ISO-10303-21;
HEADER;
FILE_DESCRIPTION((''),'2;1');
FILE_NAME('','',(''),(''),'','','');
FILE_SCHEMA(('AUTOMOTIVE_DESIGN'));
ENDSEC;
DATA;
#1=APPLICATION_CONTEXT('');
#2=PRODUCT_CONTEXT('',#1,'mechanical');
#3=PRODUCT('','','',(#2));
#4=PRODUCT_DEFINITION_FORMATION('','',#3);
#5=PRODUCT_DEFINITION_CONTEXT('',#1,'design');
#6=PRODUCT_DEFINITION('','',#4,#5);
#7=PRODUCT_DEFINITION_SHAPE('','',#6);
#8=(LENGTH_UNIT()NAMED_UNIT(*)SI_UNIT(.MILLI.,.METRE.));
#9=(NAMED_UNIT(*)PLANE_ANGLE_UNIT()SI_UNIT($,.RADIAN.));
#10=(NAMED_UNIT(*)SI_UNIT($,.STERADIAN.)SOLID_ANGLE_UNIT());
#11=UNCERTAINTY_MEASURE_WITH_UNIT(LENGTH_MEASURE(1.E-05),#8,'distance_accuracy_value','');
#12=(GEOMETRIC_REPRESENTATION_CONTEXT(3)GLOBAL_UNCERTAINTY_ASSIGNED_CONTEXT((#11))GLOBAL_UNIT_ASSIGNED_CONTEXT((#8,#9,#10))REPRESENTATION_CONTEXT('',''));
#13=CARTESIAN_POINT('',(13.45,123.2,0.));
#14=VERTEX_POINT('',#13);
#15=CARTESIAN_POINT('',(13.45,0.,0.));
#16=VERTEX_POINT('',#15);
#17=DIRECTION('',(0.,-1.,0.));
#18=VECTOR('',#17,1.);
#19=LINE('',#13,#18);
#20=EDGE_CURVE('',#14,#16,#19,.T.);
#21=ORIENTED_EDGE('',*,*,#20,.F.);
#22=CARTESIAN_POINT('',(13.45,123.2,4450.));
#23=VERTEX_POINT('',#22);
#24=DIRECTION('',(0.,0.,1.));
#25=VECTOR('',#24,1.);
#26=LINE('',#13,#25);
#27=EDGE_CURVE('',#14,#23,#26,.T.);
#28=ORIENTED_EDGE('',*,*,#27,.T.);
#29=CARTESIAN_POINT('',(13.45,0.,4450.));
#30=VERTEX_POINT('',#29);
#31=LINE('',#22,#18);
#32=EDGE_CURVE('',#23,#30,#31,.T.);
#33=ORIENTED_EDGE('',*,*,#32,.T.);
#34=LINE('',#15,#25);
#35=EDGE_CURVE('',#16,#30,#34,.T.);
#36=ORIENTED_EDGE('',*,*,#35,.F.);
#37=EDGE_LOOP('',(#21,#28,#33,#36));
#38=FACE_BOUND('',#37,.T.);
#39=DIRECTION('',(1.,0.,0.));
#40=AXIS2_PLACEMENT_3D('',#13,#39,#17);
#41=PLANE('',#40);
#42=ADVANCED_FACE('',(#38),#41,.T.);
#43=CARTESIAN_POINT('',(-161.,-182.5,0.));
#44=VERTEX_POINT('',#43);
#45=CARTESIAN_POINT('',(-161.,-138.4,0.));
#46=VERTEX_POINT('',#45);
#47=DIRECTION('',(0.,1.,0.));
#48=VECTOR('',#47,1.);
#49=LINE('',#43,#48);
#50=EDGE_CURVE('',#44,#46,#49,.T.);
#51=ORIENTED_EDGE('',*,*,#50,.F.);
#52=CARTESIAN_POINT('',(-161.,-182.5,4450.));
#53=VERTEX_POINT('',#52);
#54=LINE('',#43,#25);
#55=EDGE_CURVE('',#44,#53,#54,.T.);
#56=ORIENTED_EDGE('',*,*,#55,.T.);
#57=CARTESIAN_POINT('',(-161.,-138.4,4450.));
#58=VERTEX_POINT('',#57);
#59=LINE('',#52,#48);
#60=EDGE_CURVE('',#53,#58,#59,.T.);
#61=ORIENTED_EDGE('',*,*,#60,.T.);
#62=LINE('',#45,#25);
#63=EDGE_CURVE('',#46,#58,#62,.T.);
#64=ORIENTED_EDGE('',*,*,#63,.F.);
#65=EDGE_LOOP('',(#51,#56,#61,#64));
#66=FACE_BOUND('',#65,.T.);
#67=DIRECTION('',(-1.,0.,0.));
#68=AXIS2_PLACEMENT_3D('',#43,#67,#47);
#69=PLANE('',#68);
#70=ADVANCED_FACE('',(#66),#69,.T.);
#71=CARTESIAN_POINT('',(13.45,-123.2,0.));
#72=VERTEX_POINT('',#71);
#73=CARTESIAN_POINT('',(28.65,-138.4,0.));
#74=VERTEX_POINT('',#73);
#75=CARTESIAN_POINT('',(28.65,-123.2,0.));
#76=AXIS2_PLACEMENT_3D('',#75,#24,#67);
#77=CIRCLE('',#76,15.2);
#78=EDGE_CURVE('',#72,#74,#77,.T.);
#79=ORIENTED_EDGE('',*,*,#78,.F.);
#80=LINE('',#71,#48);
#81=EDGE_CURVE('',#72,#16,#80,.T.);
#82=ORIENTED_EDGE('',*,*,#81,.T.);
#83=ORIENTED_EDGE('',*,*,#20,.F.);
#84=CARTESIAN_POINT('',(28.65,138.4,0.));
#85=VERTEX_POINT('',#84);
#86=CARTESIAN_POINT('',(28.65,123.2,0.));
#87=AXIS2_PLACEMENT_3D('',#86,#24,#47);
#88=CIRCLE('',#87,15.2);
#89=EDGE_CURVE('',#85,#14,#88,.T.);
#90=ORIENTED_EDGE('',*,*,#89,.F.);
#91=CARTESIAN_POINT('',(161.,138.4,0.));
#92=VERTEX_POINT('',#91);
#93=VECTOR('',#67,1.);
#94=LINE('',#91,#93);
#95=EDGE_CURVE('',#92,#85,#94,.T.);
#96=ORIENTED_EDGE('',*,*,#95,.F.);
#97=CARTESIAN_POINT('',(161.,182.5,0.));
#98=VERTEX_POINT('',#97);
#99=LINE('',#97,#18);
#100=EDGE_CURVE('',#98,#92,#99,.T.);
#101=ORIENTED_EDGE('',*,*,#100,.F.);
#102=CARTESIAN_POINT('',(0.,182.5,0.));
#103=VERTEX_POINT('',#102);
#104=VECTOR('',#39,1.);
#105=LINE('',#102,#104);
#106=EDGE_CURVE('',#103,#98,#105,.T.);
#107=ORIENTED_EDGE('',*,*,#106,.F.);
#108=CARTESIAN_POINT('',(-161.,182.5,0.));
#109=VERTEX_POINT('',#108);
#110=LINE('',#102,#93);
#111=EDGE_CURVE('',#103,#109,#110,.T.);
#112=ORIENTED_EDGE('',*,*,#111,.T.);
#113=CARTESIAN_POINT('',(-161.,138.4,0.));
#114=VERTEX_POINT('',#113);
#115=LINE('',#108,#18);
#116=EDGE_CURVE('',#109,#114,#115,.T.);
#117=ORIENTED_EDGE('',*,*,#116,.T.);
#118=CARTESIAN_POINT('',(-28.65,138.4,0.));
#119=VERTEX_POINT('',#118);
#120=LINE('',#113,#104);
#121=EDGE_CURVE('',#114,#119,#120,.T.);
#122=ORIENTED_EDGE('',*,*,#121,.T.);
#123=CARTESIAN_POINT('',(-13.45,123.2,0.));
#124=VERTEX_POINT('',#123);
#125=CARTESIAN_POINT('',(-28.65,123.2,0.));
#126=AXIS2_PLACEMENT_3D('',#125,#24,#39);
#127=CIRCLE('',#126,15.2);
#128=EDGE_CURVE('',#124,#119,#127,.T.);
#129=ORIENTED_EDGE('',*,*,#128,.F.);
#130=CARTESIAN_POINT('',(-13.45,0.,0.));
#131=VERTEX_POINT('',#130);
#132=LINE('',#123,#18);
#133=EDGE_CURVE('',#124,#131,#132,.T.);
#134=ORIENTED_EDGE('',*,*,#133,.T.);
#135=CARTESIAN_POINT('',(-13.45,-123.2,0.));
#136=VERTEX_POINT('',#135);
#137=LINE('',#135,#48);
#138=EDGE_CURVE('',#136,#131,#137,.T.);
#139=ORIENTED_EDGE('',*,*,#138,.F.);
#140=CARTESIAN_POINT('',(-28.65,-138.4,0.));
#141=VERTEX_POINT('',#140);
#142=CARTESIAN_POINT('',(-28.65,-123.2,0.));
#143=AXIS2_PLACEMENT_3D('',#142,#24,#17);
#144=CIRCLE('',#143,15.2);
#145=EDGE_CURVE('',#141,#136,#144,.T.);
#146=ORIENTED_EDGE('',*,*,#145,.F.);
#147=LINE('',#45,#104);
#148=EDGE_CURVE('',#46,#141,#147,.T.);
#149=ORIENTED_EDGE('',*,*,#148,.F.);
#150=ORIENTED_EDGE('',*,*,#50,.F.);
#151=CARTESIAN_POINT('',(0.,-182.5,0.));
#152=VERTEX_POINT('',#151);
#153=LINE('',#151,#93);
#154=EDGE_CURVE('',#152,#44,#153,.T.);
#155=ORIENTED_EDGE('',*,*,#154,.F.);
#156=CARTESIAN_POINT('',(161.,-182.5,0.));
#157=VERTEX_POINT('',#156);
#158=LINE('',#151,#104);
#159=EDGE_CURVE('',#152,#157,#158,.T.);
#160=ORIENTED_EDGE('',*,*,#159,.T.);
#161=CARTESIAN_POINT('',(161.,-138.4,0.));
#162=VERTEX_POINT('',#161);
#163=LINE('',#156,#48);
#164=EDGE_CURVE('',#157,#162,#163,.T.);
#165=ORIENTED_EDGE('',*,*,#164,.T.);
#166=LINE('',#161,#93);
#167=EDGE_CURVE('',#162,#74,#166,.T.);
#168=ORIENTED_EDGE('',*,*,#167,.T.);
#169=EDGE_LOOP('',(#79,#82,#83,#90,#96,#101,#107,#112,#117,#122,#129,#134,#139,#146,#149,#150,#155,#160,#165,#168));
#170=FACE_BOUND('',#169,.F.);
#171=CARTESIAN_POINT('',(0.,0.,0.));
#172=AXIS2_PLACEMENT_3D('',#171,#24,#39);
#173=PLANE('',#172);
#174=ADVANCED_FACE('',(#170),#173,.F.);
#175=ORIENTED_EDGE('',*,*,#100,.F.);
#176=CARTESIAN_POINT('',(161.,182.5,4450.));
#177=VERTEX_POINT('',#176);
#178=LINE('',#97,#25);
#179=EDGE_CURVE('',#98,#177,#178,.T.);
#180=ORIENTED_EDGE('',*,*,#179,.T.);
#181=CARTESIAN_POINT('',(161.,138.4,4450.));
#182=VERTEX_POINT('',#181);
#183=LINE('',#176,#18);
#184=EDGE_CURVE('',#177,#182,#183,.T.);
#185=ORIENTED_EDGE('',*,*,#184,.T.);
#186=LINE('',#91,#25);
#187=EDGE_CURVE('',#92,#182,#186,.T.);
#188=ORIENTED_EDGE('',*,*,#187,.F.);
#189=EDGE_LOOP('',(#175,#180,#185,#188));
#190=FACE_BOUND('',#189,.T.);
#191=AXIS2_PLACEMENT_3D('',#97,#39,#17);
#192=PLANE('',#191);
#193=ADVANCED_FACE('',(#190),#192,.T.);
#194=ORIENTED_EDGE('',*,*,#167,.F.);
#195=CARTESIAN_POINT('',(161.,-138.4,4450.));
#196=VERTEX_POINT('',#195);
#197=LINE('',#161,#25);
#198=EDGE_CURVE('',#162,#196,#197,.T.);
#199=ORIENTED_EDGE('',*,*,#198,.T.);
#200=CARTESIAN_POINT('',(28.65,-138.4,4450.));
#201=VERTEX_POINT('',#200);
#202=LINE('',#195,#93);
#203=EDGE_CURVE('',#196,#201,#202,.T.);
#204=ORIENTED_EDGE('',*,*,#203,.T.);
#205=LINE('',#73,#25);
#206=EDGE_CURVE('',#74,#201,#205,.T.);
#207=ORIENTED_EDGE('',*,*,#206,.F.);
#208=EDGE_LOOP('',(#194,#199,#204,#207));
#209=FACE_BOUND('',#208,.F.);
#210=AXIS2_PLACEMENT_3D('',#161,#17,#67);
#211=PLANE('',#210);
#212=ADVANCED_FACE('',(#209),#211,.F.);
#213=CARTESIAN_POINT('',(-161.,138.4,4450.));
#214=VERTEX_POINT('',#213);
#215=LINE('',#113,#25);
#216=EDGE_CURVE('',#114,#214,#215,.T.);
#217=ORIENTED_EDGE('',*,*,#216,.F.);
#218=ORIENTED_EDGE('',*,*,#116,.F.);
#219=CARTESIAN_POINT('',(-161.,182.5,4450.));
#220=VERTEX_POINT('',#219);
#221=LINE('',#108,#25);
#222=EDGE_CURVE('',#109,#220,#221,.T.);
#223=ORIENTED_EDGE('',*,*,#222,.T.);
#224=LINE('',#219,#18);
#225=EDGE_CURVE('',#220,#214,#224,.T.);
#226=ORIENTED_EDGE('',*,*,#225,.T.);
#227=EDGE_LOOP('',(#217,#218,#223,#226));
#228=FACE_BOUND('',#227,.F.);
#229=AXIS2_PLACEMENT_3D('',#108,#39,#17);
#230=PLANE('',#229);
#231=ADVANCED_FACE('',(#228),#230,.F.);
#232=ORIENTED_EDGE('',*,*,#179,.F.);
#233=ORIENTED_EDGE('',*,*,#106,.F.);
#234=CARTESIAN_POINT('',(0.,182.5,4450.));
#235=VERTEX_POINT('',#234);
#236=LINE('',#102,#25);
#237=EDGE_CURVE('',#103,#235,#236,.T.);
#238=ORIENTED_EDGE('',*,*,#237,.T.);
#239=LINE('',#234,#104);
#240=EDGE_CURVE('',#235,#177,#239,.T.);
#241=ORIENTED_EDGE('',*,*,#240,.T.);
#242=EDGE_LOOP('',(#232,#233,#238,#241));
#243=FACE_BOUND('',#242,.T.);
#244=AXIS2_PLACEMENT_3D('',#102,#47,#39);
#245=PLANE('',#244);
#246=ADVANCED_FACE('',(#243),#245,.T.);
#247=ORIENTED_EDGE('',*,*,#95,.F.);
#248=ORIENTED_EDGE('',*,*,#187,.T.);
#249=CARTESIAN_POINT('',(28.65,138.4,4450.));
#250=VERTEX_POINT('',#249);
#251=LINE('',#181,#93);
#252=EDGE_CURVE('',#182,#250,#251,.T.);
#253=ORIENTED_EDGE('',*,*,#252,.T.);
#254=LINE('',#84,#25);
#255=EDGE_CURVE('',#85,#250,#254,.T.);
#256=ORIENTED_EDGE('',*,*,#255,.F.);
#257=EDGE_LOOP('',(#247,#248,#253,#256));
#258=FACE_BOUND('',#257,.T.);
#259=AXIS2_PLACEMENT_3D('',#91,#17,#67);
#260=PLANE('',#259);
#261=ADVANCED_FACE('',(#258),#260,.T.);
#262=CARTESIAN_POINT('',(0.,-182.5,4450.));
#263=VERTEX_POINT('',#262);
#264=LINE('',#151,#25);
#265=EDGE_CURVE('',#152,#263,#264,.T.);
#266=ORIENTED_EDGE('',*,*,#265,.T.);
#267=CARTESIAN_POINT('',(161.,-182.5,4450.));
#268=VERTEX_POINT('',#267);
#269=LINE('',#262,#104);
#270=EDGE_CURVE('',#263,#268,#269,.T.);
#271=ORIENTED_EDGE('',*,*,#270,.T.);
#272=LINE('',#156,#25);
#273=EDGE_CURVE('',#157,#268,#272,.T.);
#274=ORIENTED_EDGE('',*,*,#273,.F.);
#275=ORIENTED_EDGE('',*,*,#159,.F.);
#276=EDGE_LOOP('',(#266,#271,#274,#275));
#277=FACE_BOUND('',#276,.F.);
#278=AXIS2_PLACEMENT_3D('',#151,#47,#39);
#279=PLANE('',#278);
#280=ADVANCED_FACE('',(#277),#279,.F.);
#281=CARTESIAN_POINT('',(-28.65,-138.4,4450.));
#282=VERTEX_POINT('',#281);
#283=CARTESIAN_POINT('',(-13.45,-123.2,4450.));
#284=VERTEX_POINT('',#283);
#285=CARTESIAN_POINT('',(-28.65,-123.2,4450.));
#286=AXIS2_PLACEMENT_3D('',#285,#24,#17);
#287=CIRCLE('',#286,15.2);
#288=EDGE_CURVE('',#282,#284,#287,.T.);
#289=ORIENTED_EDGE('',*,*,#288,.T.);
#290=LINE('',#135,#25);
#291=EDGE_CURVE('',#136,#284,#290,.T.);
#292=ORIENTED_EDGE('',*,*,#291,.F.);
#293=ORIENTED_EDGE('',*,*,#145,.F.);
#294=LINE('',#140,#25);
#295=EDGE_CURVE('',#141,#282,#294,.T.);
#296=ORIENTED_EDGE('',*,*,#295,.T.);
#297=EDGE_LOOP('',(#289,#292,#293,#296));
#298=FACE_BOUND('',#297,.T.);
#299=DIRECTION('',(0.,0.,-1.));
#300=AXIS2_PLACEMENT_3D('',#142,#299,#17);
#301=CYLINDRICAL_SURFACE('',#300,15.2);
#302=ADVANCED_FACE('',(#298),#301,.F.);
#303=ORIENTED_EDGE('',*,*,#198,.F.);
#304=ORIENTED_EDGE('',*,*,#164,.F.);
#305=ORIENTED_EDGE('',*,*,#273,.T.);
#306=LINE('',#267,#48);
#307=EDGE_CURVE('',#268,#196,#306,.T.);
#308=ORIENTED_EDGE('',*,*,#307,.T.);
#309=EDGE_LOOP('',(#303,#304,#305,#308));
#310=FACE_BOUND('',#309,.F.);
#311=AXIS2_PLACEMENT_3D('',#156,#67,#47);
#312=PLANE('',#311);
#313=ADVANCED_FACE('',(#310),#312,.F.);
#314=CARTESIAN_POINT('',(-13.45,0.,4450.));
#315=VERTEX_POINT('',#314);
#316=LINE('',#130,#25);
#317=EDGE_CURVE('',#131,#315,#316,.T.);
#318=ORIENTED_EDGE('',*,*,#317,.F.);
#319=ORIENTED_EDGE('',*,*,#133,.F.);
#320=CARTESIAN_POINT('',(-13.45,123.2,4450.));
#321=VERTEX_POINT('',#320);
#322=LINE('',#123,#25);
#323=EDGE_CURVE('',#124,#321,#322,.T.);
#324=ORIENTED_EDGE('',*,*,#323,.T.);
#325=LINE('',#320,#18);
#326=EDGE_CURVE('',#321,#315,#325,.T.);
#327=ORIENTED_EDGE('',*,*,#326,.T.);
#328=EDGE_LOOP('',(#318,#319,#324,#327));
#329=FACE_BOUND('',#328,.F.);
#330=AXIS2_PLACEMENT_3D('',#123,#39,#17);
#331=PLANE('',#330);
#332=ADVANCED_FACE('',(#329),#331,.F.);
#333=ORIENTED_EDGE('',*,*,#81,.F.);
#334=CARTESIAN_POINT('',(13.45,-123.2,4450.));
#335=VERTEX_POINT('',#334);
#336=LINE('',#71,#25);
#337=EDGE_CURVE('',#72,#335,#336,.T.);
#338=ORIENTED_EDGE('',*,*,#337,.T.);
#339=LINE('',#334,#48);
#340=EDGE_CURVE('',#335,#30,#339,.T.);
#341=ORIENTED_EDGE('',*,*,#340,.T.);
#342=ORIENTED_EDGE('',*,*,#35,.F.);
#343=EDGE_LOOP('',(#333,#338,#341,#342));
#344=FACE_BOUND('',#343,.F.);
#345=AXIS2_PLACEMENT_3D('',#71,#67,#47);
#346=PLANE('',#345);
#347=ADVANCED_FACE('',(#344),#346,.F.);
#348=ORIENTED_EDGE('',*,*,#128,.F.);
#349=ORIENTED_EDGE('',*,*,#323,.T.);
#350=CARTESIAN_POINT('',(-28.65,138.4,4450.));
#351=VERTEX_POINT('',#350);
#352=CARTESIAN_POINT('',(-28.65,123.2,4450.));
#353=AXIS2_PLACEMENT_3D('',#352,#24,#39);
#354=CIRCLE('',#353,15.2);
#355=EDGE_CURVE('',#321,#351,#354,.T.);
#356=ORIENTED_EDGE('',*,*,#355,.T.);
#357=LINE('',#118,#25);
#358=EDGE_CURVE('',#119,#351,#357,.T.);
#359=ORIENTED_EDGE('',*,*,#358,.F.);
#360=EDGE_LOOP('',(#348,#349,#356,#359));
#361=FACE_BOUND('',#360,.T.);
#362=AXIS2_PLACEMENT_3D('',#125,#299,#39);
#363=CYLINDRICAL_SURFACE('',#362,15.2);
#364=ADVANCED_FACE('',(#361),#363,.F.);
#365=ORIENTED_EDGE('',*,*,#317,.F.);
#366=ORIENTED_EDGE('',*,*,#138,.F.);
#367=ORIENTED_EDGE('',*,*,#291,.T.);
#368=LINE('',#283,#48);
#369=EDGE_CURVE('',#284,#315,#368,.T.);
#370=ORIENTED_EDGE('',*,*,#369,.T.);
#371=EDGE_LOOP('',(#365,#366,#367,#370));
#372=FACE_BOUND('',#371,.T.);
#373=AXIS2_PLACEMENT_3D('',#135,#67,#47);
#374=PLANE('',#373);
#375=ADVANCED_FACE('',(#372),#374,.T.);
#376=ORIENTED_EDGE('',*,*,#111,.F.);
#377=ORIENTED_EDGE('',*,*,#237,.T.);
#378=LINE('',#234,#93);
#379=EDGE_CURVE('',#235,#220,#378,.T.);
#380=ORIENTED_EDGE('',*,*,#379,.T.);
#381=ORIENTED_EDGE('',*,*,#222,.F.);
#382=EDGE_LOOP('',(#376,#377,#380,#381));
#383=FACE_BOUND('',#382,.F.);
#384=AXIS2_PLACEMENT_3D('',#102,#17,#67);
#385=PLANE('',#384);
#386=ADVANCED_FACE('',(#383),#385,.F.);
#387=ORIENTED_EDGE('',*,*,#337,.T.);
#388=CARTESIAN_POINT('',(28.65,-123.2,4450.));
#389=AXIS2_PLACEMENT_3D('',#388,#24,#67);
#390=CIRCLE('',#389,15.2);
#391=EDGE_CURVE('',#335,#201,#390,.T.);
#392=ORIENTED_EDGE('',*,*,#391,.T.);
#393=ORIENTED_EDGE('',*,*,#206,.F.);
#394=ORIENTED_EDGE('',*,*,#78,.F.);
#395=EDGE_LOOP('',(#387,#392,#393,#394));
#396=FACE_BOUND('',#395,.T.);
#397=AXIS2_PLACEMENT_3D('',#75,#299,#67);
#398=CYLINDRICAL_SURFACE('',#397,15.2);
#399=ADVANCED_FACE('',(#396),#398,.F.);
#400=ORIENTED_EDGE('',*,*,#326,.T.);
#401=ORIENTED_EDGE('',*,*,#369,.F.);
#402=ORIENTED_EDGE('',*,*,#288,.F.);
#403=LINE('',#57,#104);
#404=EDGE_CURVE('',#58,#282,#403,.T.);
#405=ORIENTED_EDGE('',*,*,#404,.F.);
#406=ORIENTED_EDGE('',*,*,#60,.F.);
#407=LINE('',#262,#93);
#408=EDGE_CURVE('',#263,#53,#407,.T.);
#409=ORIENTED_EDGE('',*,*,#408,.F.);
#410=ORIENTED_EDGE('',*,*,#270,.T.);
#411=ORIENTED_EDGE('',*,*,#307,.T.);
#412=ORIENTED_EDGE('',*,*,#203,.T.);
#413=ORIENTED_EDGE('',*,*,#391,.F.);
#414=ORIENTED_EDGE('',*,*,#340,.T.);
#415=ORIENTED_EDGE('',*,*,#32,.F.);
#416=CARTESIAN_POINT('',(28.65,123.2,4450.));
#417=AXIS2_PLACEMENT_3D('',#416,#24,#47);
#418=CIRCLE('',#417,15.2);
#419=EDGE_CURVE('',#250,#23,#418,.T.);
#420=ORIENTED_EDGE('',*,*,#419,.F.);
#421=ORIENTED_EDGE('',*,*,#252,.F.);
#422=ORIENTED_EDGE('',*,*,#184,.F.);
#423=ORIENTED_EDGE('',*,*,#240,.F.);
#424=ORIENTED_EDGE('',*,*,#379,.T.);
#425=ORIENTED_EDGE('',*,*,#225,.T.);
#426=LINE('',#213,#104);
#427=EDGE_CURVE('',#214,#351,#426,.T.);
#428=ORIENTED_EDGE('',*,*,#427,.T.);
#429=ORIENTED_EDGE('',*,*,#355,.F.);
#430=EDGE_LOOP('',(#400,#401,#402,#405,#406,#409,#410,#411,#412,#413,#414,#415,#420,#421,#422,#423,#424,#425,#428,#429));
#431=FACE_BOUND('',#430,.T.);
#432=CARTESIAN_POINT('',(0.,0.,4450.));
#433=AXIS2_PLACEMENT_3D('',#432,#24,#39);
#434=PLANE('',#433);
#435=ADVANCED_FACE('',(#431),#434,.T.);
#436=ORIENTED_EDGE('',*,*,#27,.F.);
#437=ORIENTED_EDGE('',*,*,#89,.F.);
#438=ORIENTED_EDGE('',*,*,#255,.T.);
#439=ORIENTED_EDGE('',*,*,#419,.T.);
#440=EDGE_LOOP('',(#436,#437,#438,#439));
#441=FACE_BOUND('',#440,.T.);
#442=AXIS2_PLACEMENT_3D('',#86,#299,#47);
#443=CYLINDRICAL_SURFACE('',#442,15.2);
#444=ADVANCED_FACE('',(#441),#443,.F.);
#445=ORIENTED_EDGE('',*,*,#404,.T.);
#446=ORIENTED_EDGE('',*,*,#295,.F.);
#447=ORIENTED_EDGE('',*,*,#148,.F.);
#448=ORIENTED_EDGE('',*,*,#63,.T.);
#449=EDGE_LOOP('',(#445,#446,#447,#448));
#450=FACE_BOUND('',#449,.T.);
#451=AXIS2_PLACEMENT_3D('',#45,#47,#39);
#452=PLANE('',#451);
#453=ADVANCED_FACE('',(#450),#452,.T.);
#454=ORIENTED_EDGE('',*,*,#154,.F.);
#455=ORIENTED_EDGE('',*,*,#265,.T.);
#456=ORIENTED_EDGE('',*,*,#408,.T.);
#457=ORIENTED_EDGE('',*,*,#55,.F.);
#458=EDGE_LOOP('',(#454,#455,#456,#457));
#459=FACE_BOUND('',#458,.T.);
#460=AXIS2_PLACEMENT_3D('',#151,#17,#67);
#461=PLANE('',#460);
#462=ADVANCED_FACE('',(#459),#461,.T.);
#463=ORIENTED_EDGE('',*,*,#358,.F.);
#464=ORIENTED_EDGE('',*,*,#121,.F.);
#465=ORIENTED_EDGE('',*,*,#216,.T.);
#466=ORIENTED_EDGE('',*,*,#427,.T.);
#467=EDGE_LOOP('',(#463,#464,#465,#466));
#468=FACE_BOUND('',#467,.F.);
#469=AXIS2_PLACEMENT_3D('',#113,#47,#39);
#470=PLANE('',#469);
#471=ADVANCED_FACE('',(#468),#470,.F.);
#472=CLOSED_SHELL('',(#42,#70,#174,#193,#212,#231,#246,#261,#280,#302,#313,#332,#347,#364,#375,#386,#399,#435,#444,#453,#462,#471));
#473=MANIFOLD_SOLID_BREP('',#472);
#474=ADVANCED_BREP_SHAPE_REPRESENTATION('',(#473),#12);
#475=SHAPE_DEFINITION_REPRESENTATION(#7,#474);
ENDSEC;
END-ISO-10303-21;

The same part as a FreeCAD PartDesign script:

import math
import FreeCAD as App
import Part
import Sketcher
from FreeCAD import Vector
Q = App.Units.Quantity

doc = App.newDocument("Part")
body = doc.addObject("PartDesign::Body", "Body")

sketch1 = body.newObject("Sketcher::SketchObject", "Sketch")
sketch1.AttachmentSupport = (doc.getObject("XY_Plane"), [""])
sketch1.MapMode = "FlatFace"
sketch1.addGeometry([
    Part.LineSegment(Vector(-161, -138.4, 0), Vector(-161, -182.5, 0)),
    Part.LineSegment(Vector(-161, -182.5, 0), Vector(161, -182.5, 0)),
    Part.LineSegment(Vector(161, -182.5, 0), Vector(161, -138.4, 0)),
    Part.LineSegment(Vector(161, -138.4, 0), Vector(28.65, -138.4, 0)),
    Part.ArcOfCircle(Part.Circle(Vector(28.65, -123.2, 0), Vector(0, 0, 1), 15.2), math.radians(180), math.radians(270)),
    Part.LineSegment(Vector(13.45, -123.2, 0), Vector(13.45, 123.2, 0)),
    Part.ArcOfCircle(Part.Circle(Vector(28.65, 123.2, 0), Vector(0, 0, 1), 15.2), math.radians(90), math.radians(180)),
    Part.LineSegment(Vector(28.65, 138.4, 0), Vector(161, 138.4, 0)),
    Part.LineSegment(Vector(161, 138.4, 0), Vector(161, 182.5, 0)),
    Part.LineSegment(Vector(161, 182.5, 0), Vector(-161, 182.5, 0)),
    Part.LineSegment(Vector(-161, 182.5, 0), Vector(-161, 138.4, 0)),
    Part.LineSegment(Vector(-161, 138.4, 0), Vector(-28.65, 138.4, 0)),
    Part.ArcOfCircle(Part.Circle(Vector(-28.65, 123.2, 0), Vector(0, 0, 1), 15.2), math.radians(0), math.radians(90)),
    Part.LineSegment(Vector(-13.45, 123.2, 0), Vector(-13.45, -123.2, 0)),
    Part.ArcOfCircle(Part.Circle(Vector(-28.65, -123.2, 0), Vector(0, 0, 1), 15.2), math.radians(-90), math.radians(0)),
    Part.LineSegment(Vector(-28.65, -138.4, 0), Vector(-161, -138.4, 0)),
], False)
sketch1.addConstraint([
    Sketcher.Constraint("Coincident", 0, 2, 1, 1),
    Sketcher.Constraint("Coincident", 1, 2, 2, 1),
    Sketcher.Constraint("Coincident", 2, 2, 3, 1),
    Sketcher.Constraint("Tangent", 3, 2, 4, 2),
    Sketcher.Constraint("Tangent", 4, 1, 5, 1),
    Sketcher.Constraint("Tangent", 5, 2, 6, 2),
    Sketcher.Constraint("Tangent", 6, 1, 7, 1),
    Sketcher.Constraint("Coincident", 7, 2, 8, 1),
    Sketcher.Constraint("Coincident", 8, 2, 9, 1),
    Sketcher.Constraint("Coincident", 9, 2, 10, 1),
    Sketcher.Constraint("Coincident", 10, 2, 11, 1),
    Sketcher.Constraint("Tangent", 11, 2, 12, 2),
    Sketcher.Constraint("Tangent", 12, 1, 13, 1),
    Sketcher.Constraint("Tangent", 13, 2, 14, 2),
    Sketcher.Constraint("Tangent", 14, 1, 15, 1),
    Sketcher.Constraint("Coincident", 15, 2, 0, 1),
    Sketcher.Constraint("Vertical", 0),
    Sketcher.Constraint("Horizontal", 1),
    Sketcher.Constraint("Vertical", 2),
    Sketcher.Constraint("Horizontal", 3),
    Sketcher.Constraint("Vertical", 5),
    Sketcher.Constraint("Horizontal", 7),
    Sketcher.Constraint("Vertical", 8),
    Sketcher.Constraint("Horizontal", 9),
    Sketcher.Constraint("Vertical", 10),
    Sketcher.Constraint("Horizontal", 11),
    Sketcher.Constraint("Vertical", 13),
    Sketcher.Constraint("Horizontal", 15),
    Sketcher.Constraint("Equal", 4, 6),
    Sketcher.Constraint("Equal", 6, 12),
    Sketcher.Constraint("Equal", 12, 14),
    Sketcher.Constraint("Symmetric", 4, 3, 12, 3, -1, 1),
    Sketcher.Constraint("Symmetric", 0, 2, 8, 2, -1, 1),
    Sketcher.Constraint("Symmetric", 7, 2, 10, 2, -2),
    Sketcher.Constraint("Symmetric", 2, 2, 15, 2, -2),
    Sketcher.Constraint("Radius", 4, Q("15.2 mm")),
    Sketcher.Constraint("DistanceY", 0, 2, 0, 1, Q("44.1 mm")),
    Sketcher.Constraint("DistanceX", 0, 2, -1, 1, Q("161 mm")),
    Sketcher.Constraint("DistanceY", 0, 2, -1, 1, Q("182.5 mm")),
    Sketcher.Constraint("DistanceX", -1, 1, 4, 1, Q("13.45 mm")),
])
pad1 = body.newObject("PartDesign::Pad", "Pad")
pad1.Profile = sketch1
pad1.Length = 4450

doc.recompute()
